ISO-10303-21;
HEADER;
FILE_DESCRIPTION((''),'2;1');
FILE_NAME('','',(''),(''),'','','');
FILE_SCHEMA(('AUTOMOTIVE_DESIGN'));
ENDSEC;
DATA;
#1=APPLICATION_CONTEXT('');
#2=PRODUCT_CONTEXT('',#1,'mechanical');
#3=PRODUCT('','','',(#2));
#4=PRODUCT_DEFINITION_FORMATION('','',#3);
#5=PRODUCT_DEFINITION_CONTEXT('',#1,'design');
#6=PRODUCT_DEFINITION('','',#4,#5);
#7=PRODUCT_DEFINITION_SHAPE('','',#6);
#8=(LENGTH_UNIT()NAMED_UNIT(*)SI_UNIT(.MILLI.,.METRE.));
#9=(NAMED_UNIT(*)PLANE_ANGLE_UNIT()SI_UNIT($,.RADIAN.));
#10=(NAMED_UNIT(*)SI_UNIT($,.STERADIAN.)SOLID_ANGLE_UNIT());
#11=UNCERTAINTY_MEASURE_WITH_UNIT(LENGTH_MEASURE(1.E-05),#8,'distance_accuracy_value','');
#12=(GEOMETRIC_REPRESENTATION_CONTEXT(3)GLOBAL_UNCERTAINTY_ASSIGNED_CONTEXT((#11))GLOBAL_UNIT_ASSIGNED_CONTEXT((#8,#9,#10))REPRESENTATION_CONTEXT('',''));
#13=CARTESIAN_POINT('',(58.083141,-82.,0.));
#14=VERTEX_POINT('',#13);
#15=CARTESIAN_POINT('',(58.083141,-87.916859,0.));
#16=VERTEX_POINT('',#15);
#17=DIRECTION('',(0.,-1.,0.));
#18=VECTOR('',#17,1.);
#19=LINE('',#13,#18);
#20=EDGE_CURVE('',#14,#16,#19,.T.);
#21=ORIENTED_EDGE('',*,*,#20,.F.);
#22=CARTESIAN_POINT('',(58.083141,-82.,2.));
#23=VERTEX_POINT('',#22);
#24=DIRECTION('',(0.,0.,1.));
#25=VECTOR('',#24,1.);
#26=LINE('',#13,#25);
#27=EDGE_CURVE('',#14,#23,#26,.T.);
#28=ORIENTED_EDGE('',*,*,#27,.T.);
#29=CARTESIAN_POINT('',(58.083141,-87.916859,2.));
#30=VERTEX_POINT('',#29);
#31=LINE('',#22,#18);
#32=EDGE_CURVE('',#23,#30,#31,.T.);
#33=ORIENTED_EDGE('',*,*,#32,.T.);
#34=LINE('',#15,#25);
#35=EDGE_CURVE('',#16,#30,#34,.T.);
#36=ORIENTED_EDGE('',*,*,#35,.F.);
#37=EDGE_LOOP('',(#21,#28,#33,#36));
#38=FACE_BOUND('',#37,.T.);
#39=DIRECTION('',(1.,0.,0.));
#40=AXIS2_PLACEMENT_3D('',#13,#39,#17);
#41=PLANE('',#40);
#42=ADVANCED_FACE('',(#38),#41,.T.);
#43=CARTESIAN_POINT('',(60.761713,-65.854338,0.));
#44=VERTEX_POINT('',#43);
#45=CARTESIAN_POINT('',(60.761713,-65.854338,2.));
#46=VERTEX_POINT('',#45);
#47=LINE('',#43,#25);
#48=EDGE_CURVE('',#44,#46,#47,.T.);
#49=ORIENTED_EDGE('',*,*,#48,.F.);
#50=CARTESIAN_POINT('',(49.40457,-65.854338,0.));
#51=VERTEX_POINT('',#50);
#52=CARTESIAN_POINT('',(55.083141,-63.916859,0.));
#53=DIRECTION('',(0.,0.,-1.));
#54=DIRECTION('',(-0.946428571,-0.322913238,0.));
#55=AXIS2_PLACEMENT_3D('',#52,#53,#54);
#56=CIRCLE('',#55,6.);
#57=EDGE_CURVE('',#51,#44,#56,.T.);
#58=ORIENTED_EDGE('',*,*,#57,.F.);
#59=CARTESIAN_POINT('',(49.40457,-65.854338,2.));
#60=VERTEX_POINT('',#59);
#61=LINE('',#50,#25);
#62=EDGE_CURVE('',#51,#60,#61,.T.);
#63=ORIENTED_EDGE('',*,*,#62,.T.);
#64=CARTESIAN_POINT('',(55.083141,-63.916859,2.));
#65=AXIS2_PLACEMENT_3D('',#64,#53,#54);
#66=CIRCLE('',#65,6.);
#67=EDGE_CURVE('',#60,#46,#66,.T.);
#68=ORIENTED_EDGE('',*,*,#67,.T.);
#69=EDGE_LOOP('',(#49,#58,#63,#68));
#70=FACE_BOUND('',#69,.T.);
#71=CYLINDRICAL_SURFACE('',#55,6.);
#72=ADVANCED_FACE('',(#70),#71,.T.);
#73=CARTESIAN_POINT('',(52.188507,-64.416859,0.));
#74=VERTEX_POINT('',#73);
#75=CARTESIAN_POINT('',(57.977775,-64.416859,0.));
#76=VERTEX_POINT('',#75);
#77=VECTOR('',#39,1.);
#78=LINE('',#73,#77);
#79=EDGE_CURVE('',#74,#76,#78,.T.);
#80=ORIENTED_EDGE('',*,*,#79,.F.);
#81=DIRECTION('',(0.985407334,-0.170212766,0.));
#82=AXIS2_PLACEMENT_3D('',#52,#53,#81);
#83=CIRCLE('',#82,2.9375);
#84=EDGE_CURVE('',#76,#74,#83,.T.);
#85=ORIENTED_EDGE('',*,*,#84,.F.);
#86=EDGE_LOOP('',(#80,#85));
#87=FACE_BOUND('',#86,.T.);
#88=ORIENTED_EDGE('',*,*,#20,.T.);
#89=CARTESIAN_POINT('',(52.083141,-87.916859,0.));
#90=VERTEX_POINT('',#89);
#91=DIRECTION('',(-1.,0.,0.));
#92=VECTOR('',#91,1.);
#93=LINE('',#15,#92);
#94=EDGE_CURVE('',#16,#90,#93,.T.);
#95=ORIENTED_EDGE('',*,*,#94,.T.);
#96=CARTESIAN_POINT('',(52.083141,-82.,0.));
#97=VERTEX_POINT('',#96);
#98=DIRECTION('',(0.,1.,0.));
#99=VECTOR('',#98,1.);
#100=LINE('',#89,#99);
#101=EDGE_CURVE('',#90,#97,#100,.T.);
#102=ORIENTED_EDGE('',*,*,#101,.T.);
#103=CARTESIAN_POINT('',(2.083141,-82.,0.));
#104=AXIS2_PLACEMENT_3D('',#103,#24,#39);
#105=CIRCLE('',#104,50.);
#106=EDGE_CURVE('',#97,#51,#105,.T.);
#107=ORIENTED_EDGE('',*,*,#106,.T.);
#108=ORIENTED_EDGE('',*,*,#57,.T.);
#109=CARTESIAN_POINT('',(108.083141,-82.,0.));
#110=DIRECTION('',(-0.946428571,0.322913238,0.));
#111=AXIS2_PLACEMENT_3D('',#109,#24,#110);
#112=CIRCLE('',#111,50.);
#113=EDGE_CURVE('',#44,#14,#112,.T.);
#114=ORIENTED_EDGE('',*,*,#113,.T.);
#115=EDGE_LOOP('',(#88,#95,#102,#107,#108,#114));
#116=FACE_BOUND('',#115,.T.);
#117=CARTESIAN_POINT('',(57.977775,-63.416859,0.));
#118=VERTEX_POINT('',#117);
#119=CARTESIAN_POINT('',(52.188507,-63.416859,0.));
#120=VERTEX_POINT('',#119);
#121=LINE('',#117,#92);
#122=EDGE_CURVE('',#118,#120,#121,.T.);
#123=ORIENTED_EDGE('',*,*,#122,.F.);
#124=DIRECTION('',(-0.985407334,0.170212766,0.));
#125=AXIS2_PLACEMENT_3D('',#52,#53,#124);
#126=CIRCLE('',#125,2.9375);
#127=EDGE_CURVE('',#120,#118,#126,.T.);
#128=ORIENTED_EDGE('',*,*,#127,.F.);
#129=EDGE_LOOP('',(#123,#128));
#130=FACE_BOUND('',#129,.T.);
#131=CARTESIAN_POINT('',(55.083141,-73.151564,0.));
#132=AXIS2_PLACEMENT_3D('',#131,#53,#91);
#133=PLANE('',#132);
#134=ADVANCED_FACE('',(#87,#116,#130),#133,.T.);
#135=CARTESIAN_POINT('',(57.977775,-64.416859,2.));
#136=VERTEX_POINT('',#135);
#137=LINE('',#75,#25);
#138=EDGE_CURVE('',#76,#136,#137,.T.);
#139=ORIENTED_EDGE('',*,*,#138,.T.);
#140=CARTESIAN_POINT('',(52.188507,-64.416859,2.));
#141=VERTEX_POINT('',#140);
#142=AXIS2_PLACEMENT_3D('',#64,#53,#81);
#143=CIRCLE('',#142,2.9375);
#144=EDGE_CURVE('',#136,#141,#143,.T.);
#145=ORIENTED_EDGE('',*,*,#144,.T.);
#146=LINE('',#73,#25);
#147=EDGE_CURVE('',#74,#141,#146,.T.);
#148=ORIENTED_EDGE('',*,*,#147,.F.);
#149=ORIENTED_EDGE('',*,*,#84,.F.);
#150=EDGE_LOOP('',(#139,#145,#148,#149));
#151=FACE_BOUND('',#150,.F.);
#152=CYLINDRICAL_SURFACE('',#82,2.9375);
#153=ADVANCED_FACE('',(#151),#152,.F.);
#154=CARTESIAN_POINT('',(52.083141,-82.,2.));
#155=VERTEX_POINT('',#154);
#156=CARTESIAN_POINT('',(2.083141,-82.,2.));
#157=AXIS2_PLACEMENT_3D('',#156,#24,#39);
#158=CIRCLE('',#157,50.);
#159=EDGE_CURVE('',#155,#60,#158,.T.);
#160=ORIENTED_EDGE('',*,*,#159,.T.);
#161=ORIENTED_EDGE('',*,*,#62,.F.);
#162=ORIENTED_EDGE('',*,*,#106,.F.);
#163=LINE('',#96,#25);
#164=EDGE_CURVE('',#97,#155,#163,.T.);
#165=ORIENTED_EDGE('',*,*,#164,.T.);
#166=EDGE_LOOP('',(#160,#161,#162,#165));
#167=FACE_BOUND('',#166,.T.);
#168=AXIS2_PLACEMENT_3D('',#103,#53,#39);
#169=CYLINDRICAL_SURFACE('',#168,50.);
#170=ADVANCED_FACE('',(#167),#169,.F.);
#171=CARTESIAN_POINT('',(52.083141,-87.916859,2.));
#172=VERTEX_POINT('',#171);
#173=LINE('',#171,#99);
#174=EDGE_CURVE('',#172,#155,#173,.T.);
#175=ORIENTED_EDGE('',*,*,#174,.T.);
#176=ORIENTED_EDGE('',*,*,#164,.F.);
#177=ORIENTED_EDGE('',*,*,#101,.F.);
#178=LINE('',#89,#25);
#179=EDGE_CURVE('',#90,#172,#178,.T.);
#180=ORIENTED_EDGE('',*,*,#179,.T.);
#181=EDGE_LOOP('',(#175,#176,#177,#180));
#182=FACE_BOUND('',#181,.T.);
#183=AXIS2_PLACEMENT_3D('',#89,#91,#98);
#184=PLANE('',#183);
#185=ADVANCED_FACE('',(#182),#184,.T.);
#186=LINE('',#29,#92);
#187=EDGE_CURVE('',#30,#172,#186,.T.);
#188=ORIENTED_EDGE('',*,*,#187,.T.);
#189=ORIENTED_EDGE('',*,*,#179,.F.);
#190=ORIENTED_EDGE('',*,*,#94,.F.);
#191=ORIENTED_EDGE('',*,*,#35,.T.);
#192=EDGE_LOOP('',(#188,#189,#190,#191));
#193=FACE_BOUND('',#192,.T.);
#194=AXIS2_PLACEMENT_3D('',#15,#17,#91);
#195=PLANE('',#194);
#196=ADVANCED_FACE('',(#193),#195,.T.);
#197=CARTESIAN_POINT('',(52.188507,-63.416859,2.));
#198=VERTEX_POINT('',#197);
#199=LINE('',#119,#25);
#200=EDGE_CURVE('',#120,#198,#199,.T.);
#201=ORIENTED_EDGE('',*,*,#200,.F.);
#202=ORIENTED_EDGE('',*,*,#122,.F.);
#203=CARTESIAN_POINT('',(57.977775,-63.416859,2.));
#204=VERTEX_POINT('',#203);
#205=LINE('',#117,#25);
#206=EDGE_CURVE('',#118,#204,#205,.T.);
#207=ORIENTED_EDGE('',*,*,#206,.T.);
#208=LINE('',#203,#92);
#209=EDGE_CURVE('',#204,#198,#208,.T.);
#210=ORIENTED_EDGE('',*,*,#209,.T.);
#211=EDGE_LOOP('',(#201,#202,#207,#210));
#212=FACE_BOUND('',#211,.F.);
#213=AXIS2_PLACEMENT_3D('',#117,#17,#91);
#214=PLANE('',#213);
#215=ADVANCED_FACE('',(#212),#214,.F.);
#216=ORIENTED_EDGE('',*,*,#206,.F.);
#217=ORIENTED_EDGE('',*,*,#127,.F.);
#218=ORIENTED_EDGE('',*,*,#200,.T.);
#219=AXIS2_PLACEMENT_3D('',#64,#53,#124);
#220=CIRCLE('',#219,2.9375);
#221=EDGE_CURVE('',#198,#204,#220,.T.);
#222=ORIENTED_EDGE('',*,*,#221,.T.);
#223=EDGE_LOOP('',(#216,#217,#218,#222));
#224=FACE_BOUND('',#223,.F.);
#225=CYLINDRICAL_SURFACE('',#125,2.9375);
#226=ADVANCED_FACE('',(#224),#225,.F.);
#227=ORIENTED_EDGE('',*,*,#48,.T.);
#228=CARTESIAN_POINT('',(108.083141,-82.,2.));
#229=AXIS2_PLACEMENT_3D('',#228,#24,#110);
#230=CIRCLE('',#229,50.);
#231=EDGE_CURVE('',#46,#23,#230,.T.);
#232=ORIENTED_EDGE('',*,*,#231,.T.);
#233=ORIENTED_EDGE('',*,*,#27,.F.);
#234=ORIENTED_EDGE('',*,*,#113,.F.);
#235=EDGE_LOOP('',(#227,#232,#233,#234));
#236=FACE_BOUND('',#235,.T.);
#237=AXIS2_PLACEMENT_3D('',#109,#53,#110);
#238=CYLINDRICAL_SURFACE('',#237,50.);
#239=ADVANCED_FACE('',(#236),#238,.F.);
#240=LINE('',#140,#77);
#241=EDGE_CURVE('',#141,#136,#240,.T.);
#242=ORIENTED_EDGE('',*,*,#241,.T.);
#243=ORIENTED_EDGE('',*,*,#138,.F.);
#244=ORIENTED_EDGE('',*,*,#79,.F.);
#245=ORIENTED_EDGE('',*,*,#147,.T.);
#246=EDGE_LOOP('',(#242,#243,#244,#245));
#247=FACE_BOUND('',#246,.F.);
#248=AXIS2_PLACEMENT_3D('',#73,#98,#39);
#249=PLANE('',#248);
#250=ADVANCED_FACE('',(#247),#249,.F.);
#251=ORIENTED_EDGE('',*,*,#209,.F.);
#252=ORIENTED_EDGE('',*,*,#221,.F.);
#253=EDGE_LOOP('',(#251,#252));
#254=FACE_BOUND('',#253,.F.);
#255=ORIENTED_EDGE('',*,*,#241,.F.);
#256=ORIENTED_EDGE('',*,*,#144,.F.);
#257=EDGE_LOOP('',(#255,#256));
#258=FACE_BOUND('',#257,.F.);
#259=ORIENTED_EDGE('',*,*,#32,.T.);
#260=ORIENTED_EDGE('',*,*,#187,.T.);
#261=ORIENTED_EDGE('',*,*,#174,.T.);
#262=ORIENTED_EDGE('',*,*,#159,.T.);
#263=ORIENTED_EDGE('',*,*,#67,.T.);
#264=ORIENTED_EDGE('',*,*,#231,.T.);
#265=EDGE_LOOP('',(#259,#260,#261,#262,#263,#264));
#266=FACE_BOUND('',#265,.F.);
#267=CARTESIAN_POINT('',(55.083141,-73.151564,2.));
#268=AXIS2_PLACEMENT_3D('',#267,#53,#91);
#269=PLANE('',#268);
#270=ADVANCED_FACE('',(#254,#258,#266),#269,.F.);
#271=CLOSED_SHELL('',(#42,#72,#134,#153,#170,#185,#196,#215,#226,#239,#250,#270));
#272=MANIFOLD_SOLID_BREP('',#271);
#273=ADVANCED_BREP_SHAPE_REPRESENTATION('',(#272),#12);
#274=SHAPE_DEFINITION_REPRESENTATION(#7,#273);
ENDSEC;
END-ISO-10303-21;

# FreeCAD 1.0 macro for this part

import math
import FreeCAD as App
import Part
import Sketcher

doc = App.newDocument("Part")
params = doc.addObject("Spreadsheet::Sheet", "Params")
for row, (alias, value) in enumerate([
    ("sketch1_radius", "50 mm"),
    ("sketch1_radius2", "6 mm"),
    ("sketch1_width", "6 mm"),
    ("pad1_length", "2 mm"),
], start=1):
    params.set(f"A{row}", alias)
    params.set(f"B{row}", "=" + value)
    params.setAlias(f"B{row}", alias)

body = doc.addObject("PartDesign::Body", "Body")

sketch1 = body.newObject("Sketcher::SketchObject", "Sketch")
sketch1.AttachmentSupport = (doc.getObject("XY_Plane"), [""])
sketch1.MapMode = "FlatFace"
sketch1.addGeometry([
    Part.LineSegment(App.Vector(58.1, -87.9, 0), App.Vector(58.1, -82, 0)),
    Part.ArcOfCircle(Part.Circle(App.Vector(108.1, -82, 0), App.Vector(0, 0, 1), 50), math.radians(161.16), math.radians(180)),
    Part.ArcOfCircle(Part.Circle(App.Vector(55.1, -63.9, 0), App.Vector(0, 0, 1), 6), math.radians(-19), math.radians(199)),
    Part.ArcOfCircle(Part.Circle(App.Vector(2.1, -82, 0), App.Vector(0, 0, 1), 50), math.radians(0), math.radians(18.84)),
    Part.LineSegment(App.Vector(52.1, -82, 0), App.Vector(52.1, -87.9, 0)),
    Part.LineSegment(App.Vector(52.1, -87.9, 0), App.Vector(58.1, -87.9, 0)),
    Part.LineSegment(App.Vector(52.2, -64.4, 0), App.Vector(58, -64.4, 0)),
    Part.ArcOfCircle(Part.Circle(App.Vector(55.1, -63.9, 0), App.Vector(0, 0, 1), 2.9), math.radians(-170), math.radians(-10)),
    Part.LineSegment(App.Vector(58, -63.4, 0), App.Vector(52.2, -63.4, 0)),
    Part.ArcOfCircle(Part.Circle(App.Vector(55.1, -63.9, 0), App.Vector(0, 0, 1), 2.9), math.radians(10), math.radians(170)),
], False)
sketch1.addConstraint([
    Sketcher.Constraint("Tangent", 0, 2, 1, 2),
    Sketcher.Constraint("Tangent", 1, 1, 2, 1),
    Sketcher.Constraint("Tangent", 2, 2, 3, 2),
    Sketcher.Constraint("Tangent", 3, 1, 4, 1),
    Sketcher.Constraint("Coincident", 4, 2, 5, 1),
    Sketcher.Constraint("Coincident", 5, 2, 0, 1),
    Sketcher.Constraint("Coincident", 6, 1, 7, 1),
    Sketcher.Constraint("Coincident", 7, 2, 6, 2),
    Sketcher.Constraint("Coincident", 8, 1, 9, 1),
    Sketcher.Constraint("Coincident", 9, 2, 8, 2),
    Sketcher.Constraint("Vertical", 0),
    Sketcher.Constraint("Vertical", 4),
    Sketcher.Constraint("Horizontal", 5),
    Sketcher.Constraint("Horizontal", 6),
    Sketcher.Constraint("Horizontal", 8),
    Sketcher.Constraint("Coincident", 7, 3, 2, 3),
    Sketcher.Constraint("Coincident", 9, 3, 2, 3),
    Sketcher.Constraint("Equal", 1, 3),
    Sketcher.Constraint("Equal", 7, 9),
    Sketcher.Constraint("Horizontal", 1, 3, 3, 3),
    Sketcher.Constraint("Vertical", 7, 2, 8, 1),
    Sketcher.Constraint("Radius", 1, 50.0),
    Sketcher.Constraint("Radius", 2, 6.0),
    Sketcher.Constraint("DistanceX", 5, 1, 5, 2, 6.0),
    Sketcher.Constraint("DistanceY", 1, 3, -1, 1, 82.0),
    Sketcher.Constraint("DistanceY", 4, 2, 2, 3, 24.0),
    Sketcher.Constraint("DistanceY", 7, 2, 8, 1, 1.0),
    Sketcher.Constraint("Radius", 7, 2.9375),
    Sketcher.Constraint("DistanceX", -1, 1, 1, 3, 108.083141),
])
sketch1.setExpression("Constraints[21]", "Params.sketch1_radius")
sketch1.setExpression("Constraints[22]", "Params.sketch1_radius2")
sketch1.setExpression("Constraints[23]", "Params.sketch1_width")
pad1 = body.newObject("PartDesign::Pad", "Pad")
pad1.Profile = sketch1
pad1.setExpression("Length", "Params.pad1_length")

doc.recompute()
